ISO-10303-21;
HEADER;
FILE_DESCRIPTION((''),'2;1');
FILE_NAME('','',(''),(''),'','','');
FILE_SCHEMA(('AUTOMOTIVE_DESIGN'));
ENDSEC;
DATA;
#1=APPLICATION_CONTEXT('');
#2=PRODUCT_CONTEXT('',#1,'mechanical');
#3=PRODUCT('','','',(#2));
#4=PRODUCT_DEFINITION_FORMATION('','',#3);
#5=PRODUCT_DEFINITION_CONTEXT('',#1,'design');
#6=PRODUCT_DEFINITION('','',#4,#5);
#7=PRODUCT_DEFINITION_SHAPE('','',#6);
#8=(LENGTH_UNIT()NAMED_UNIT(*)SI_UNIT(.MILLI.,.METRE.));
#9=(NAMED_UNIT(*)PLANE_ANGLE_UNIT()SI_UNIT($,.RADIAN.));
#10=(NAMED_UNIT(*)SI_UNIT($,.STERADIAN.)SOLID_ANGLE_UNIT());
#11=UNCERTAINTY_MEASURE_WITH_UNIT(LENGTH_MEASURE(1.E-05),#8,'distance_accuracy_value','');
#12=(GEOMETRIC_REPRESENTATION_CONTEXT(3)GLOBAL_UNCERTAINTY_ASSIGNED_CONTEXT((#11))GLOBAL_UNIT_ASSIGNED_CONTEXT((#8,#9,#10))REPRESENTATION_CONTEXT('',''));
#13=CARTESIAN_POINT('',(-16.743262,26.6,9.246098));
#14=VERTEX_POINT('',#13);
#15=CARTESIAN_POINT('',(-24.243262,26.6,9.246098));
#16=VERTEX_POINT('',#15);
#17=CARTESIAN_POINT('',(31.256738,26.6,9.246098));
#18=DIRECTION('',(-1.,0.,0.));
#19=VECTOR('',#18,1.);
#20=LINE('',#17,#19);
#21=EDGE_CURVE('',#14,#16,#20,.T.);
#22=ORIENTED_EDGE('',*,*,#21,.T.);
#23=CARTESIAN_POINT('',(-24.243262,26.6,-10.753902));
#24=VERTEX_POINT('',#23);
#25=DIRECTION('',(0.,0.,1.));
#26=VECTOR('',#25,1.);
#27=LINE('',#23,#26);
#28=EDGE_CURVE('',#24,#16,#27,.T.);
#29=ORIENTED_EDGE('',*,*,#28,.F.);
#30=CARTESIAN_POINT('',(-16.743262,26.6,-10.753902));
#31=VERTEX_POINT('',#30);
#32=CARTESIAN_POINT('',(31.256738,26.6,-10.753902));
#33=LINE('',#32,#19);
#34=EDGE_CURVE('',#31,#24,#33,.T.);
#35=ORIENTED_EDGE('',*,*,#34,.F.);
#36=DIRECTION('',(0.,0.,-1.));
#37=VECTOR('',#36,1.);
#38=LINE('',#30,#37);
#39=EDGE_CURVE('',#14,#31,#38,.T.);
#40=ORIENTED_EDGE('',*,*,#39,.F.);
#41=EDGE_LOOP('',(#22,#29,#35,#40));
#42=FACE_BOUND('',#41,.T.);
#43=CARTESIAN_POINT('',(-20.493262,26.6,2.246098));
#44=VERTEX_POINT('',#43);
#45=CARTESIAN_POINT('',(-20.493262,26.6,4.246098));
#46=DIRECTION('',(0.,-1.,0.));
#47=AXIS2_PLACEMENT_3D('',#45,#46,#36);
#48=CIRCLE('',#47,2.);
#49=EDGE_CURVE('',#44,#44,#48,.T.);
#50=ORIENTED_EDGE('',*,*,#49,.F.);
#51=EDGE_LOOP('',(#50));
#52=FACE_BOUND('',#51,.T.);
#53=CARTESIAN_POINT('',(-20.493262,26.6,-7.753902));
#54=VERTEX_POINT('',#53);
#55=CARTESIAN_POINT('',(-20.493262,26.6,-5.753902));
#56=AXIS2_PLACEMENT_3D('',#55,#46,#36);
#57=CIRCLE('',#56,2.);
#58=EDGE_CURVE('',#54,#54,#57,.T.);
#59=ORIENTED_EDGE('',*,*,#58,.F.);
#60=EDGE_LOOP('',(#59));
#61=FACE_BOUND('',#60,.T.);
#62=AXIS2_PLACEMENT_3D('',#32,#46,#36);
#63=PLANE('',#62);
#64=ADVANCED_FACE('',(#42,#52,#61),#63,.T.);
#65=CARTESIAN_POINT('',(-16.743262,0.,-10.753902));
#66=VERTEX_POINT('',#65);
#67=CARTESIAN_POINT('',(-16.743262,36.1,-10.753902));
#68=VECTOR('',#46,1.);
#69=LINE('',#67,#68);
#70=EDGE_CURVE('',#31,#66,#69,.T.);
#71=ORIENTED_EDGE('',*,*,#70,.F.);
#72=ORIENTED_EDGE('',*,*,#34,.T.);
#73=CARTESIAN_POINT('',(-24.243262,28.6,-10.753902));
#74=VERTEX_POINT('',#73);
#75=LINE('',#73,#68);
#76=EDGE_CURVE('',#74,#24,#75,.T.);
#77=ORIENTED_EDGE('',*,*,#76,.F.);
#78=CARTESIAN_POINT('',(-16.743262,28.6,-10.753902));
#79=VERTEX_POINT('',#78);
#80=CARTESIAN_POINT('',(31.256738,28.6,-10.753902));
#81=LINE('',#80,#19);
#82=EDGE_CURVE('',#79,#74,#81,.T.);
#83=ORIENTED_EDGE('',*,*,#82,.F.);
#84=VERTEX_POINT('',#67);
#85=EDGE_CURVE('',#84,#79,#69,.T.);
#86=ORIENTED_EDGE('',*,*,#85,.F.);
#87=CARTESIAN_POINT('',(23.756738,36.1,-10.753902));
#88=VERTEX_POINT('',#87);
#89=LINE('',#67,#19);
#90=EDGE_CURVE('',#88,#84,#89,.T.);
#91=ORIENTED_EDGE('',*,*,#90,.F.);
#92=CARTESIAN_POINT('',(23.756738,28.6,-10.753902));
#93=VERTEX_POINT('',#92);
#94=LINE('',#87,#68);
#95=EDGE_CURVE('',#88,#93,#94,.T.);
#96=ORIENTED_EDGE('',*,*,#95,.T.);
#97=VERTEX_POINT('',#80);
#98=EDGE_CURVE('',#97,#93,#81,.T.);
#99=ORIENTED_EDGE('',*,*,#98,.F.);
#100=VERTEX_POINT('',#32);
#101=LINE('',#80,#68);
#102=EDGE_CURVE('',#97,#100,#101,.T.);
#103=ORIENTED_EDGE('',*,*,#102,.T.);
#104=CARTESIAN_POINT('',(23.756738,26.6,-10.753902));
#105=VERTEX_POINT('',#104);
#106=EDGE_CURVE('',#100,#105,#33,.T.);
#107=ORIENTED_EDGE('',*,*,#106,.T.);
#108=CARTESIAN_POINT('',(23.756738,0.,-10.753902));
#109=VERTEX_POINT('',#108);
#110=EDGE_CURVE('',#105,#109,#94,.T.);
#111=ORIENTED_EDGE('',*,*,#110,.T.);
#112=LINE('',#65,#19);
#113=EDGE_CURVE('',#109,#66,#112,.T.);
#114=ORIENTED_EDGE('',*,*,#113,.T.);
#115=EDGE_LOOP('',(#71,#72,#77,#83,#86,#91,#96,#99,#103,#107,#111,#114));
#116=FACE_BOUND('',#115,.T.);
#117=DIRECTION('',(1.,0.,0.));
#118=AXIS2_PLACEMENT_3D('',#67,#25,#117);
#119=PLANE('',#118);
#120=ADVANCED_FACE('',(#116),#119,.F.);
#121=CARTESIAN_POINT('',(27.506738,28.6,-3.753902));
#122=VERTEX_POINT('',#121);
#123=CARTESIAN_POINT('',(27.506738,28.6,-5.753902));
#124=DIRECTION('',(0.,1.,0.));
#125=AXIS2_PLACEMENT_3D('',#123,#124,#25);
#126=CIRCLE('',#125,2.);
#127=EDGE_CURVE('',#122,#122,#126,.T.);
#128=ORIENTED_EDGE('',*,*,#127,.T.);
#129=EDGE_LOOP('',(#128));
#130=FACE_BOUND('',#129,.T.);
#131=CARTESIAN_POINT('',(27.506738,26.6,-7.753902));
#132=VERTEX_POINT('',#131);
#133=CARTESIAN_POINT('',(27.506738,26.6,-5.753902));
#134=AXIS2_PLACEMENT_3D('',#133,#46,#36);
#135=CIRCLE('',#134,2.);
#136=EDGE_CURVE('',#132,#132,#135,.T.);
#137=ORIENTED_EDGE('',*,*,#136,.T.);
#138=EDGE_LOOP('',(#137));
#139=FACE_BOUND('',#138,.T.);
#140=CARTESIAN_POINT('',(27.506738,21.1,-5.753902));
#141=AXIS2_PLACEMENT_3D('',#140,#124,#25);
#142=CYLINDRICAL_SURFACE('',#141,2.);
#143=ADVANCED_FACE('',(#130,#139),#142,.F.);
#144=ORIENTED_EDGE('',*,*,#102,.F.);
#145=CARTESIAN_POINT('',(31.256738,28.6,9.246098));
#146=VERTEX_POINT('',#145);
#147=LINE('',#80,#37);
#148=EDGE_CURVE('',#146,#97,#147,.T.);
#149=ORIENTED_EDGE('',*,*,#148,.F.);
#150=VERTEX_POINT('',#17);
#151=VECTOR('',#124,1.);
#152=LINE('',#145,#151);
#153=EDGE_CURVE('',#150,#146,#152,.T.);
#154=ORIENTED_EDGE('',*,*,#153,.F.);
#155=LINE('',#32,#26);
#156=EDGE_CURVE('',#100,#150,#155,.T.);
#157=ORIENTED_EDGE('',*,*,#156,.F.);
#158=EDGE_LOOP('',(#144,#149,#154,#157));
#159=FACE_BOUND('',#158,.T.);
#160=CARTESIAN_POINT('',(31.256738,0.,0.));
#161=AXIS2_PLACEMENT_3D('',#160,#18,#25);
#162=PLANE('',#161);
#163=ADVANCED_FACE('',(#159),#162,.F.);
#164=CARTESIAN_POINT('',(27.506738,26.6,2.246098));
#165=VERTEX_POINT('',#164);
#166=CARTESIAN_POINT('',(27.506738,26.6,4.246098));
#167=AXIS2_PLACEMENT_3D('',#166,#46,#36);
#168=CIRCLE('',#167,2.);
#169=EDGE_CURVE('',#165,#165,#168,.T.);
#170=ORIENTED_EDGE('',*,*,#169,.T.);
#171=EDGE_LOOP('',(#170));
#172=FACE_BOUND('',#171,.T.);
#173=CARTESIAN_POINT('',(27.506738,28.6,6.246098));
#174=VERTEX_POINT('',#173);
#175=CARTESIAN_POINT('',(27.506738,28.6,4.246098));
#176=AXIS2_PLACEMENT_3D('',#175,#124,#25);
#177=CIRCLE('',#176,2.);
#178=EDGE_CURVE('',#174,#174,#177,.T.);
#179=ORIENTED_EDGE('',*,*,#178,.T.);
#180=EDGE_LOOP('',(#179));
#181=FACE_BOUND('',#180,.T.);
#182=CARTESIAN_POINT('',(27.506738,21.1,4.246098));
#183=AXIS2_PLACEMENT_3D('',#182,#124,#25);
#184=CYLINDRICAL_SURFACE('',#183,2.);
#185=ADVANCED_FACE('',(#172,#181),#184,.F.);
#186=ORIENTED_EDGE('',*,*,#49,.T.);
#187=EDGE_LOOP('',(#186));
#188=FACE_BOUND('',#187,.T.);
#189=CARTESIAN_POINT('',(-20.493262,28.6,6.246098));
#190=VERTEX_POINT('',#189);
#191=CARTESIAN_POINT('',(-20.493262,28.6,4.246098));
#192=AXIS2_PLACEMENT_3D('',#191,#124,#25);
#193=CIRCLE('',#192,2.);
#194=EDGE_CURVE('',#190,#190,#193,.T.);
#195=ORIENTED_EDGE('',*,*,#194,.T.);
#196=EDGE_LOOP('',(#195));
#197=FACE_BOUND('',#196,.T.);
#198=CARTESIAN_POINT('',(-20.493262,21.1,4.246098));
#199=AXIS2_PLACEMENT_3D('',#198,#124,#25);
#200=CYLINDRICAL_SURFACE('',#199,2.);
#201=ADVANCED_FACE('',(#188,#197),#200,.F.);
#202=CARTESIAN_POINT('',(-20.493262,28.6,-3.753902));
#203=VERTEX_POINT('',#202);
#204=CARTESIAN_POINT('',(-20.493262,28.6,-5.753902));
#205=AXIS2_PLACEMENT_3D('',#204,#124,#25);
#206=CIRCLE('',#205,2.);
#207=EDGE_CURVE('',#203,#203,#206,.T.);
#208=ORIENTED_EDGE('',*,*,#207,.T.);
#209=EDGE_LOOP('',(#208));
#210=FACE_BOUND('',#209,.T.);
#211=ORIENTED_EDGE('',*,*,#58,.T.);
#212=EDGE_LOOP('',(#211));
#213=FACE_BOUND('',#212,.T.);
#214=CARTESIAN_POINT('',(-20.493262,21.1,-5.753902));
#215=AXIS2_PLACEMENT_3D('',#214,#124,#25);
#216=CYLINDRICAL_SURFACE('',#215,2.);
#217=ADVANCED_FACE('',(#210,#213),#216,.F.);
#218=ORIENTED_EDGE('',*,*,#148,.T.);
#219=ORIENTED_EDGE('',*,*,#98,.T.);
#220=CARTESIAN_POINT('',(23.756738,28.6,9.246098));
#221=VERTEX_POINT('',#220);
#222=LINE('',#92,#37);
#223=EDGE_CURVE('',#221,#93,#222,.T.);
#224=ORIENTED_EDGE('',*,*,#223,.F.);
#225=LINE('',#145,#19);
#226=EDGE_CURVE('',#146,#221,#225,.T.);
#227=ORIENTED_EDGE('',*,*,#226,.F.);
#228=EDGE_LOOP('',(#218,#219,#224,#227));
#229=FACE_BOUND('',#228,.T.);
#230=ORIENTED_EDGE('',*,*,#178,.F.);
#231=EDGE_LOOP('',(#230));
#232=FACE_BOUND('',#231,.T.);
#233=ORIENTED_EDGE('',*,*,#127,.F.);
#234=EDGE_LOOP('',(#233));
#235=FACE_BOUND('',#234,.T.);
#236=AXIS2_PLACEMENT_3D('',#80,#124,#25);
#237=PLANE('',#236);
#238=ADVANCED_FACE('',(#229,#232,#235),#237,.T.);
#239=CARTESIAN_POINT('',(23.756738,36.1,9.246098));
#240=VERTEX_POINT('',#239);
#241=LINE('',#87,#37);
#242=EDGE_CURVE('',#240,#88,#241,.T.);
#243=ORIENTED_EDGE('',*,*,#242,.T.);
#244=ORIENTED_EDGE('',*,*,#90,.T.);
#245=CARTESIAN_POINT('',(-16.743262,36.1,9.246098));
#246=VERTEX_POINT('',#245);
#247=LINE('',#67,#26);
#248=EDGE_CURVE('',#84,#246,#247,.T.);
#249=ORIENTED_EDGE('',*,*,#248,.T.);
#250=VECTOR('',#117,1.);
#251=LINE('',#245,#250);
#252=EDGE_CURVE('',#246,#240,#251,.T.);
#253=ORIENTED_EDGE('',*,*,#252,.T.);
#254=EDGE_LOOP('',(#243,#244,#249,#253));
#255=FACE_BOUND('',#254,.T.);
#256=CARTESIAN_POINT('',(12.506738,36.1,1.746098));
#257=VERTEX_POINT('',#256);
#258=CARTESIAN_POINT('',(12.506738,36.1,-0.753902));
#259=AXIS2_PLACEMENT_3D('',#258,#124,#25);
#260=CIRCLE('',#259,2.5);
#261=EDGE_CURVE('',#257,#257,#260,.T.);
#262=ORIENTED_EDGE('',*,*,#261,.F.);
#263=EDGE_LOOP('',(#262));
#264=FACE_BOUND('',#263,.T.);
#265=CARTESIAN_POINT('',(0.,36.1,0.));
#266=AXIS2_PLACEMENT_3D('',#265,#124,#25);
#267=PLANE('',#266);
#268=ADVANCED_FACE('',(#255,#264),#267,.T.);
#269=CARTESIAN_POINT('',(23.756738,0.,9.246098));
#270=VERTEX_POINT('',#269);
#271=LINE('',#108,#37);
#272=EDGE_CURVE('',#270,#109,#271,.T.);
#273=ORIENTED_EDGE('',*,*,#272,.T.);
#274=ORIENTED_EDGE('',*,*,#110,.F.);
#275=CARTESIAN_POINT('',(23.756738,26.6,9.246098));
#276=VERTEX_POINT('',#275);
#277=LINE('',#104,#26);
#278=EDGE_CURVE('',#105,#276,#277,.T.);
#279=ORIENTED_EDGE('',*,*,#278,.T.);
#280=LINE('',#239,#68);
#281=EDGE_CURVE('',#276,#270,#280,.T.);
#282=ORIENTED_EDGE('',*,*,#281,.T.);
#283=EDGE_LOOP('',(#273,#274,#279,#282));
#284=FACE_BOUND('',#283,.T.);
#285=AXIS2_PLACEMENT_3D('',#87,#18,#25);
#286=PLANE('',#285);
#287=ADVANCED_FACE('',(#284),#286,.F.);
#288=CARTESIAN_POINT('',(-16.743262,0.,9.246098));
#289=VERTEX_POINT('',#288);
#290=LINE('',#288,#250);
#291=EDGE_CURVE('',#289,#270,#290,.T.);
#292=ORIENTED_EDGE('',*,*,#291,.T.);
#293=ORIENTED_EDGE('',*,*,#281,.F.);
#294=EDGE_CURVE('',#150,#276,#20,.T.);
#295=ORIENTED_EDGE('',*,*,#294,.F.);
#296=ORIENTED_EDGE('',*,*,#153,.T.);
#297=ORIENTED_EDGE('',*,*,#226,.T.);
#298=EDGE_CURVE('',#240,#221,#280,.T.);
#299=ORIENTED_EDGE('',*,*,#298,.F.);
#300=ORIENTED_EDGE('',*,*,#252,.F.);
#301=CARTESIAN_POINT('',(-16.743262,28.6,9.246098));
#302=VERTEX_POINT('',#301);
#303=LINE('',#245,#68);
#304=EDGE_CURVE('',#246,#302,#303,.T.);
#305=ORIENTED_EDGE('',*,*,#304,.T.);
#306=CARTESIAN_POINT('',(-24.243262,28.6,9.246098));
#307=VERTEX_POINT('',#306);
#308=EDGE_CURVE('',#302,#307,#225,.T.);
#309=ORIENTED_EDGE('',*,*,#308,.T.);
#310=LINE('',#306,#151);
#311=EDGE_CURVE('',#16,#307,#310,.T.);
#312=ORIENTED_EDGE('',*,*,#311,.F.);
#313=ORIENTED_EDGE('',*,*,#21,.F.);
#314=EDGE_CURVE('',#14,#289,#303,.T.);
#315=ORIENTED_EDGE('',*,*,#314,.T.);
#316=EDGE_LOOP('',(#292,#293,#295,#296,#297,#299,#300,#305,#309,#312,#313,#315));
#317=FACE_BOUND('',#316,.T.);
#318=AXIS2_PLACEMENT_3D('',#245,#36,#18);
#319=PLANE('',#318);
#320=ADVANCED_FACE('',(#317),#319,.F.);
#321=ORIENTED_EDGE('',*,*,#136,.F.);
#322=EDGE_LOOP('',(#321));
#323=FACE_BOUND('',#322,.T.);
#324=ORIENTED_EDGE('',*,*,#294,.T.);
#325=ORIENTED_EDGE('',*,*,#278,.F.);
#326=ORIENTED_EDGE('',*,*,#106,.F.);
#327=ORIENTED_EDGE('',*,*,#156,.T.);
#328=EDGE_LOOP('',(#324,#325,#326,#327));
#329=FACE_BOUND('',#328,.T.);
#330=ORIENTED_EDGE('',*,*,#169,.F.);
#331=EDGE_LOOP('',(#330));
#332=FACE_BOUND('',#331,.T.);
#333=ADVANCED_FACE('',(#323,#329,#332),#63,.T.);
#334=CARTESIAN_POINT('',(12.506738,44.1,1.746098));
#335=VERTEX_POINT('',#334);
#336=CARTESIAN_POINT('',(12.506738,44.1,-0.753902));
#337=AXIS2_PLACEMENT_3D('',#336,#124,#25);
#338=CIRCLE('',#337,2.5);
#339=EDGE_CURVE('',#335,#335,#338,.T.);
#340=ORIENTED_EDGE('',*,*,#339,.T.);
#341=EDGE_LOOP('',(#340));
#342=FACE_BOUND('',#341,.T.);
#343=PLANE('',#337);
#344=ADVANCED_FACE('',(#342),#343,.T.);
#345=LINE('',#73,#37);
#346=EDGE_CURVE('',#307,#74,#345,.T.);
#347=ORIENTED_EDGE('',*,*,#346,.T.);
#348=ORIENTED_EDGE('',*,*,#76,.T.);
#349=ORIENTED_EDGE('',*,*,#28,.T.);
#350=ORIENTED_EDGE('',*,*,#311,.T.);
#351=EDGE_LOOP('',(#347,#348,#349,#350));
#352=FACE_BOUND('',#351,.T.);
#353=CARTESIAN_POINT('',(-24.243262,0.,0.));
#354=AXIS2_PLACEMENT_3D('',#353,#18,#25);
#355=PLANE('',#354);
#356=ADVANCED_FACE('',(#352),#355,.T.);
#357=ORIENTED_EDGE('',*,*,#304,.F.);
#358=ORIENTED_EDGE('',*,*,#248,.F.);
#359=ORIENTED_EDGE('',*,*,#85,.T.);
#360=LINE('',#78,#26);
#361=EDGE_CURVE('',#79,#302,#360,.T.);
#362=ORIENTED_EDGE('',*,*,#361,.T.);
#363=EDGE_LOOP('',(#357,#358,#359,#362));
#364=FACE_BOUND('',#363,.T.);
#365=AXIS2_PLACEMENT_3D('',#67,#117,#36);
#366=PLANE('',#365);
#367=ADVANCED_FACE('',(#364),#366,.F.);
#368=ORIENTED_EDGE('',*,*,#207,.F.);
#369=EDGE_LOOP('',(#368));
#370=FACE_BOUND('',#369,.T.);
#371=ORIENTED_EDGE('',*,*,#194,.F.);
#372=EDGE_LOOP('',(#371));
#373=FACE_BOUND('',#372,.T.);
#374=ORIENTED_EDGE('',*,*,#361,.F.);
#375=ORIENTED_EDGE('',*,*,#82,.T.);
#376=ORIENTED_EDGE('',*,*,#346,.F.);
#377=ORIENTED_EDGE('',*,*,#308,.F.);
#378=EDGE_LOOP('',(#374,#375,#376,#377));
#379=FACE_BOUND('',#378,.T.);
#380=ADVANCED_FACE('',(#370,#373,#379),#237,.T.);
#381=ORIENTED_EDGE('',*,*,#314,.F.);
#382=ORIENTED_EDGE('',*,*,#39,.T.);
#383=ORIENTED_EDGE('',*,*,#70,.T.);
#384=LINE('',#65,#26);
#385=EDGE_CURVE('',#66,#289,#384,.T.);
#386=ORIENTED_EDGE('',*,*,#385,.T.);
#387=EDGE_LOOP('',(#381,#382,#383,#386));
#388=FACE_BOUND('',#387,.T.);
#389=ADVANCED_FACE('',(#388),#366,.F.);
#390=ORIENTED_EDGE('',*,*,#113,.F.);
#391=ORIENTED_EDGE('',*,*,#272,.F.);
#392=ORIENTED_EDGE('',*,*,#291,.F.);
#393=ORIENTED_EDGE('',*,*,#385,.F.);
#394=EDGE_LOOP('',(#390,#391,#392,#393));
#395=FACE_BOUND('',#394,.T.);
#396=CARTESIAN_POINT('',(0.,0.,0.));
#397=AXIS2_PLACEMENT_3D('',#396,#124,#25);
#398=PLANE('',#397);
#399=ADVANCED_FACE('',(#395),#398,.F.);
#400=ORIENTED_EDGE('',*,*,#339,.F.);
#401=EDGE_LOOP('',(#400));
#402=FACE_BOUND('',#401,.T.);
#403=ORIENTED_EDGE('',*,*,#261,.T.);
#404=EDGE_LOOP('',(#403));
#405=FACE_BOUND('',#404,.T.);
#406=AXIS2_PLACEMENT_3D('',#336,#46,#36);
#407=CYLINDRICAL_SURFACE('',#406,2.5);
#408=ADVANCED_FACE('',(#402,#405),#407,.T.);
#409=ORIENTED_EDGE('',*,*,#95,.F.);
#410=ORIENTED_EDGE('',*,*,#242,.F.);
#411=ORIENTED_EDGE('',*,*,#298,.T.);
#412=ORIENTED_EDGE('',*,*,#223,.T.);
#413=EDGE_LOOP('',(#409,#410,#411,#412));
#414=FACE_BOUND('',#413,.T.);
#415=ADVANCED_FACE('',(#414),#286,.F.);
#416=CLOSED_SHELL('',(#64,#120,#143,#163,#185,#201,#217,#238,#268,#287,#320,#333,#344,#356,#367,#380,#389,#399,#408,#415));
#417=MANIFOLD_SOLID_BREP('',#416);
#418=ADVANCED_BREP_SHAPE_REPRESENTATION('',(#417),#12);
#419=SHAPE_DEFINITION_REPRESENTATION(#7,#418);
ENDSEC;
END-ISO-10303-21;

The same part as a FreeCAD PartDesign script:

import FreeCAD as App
import Part
import Sketcher
from FreeCAD import Vector
Q = App.Units.Quantity

doc = App.newDocument("Part")
body = doc.addObject("PartDesign::Body", "Body")

# Sketch on XZ plane
sketch1 = body.newObject("Sketcher::SketchObject", "Sketch")
sketch1.AttachmentSupport = (doc.getObject("XZ_Plane"), [""])
sketch1.MapMode = "FlatFace"
sketch1.addGeometry([
    Part.LineSegment(Vector(-17, -11, 0), Vector(-17, 9, 0)),
    Part.LineSegment(Vector(-17, 9, 0), Vector(24, 9, 0)),
    Part.LineSegment(Vector(24, 9, 0), Vector(24, -11, 0)),
    Part.LineSegment(Vector(24, -11, 0), Vector(-17, -11, 0)),
], False)
sketch1.addConstraint([
    Sketcher.Constraint("Coincident", 0, 2, 1, 1),
    Sketcher.Constraint("Coincident", 1, 2, 2, 1),
    Sketcher.Constraint("Coincident", 2, 2, 3, 1),
    Sketcher.Constraint("Coincident", 3, 2, 0, 1),
    Sketcher.Constraint("Vertical", 0),
    Sketcher.Constraint("Horizontal", 1),
    Sketcher.Constraint("Vertical", 2),
    Sketcher.Constraint("Horizontal", 3),
    Sketcher.Constraint("DistanceY", 0, 1, 0, 2, Q("20 mm")),
    Sketcher.Constraint("DistanceX", 1, 1, 1, 2, Q("40.5 mm")),
    Sketcher.Constraint("DistanceY", -1, 1, 0, 2, Q("9.246098 mm")),
    Sketcher.Constraint("DistanceX", 0, 2, -1, 1, Q("16.743262 mm")),
])
pad1 = body.newObject("PartDesign::Pad", "Pad")
pad1.Profile = sketch1
pad1.Length = 36.1
pad1.Reversed = True

# Sketch on XZ plane
sketch2 = body.newObject("Sketcher::SketchObject", "Sketch001")
sketch2.AttachmentSupport = (doc.getObject("XZ_Plane"), [""])
sketch2.MapMode = "FlatFace"
sketch2.AttachmentOffset = App.Placement(Vector(0, 0, -36.1), App.Rotation())
sketch2.addGeometry(Part.Circle(Vector(12.5, -0.8, 0), Vector(0, 0, 1), 2.5), False)
sketch2.addConstraint([
    Sketcher.Constraint("Diameter", 0, Q("5 mm")),
    Sketcher.Constraint("DistanceY", 0, 3, -1, 1, Q("0.753902 mm")),
    Sketcher.Constraint("DistanceX", -1, 1, 0, 3, Q("12.506738 mm")),
])
pad2 = body.newObject("PartDesign::Pad", "Pad001")
pad2.Profile = sketch2
pad2.Length = 8
pad2.Reversed = True

# Sketch on YZ plane
sketch3 = body.newObject("Sketcher::SketchObject", "Sketch002")
sketch3.AttachmentSupport = (doc.getObject("YZ_Plane"), [""])
sketch3.MapMode = "FlatFace"
sketch3.AttachmentOffset = App.Placement(Vector(0, 0, -16.743262), App.Rotation())
sketch3.addGeometry([
    Part.LineSegment(Vector(28.6, -10.8, 0), Vector(26.6, -10.8, 0)),
    Part.LineSegment(Vector(26.6, -10.8, 0), Vector(26.6, 9.2, 0)),
    Part.LineSegment(Vector(26.6, 9.2, 0), Vector(28.6, 9.2, 0)),
    Part.LineSegment(Vector(28.6, 9.2, 0), Vector(28.6, -10.8, 0)),
], False)
sketch3.addConstraint([
    Sketcher.Constraint("Coincident", 0, 2, 1, 1),
    Sketcher.Constraint("Coincident", 1, 2, 2, 1),
    Sketcher.Constraint("Coincident", 2, 2, 3, 1),
    Sketcher.Constraint("Coincident", 3, 2, 0, 1),
    Sketcher.Constraint("Horizontal", 0),
    Sketcher.Constraint("Vertical", 1),
    Sketcher.Constraint("Horizontal", 2),
    Sketcher.Constraint("Vertical", 3),
    Sketcher.Constraint("DistanceX", 0, 2, 0, 1, Q("2 mm")),
    Sketcher.Constraint("DistanceY", 1, 1, 1, 2, Q("20 mm")),
    Sketcher.Constraint("DistanceX", -1, 1, 0, 2, Q("26.6 mm")),
    Sketcher.Constraint("DistanceY", 0, 2, -1, 1, Q("10.753902 mm")),
])
pad3 = body.newObject("PartDesign::Pad", "Pad002")
pad3.Profile = sketch3
pad3.Type = "TwoLengths"
pad3.Length = 7.5
pad3.Length2 = 48
pad3.Reversed = True

# Sketch on XZ plane
sketch4 = body.newObject("Sketcher::SketchObject", "Sketch003")
sketch4.AttachmentSupport = (doc.getObject("XZ_Plane"), [""])
sketch4.MapMode = "FlatFace"
sketch4.AttachmentOffset = App.Placement(Vector(0, 0, -28.6), App.Rotation())
sketch4.addGeometry([
    Part.Circle(Vector(-20.5, -5.8, 0), Vector(0, 0, 1), 2),
    Part.Circle(Vector(27.5, -5.8, 0), Vector(0, 0, 1), 2),
    Part.Circle(Vector(-20.5, 4.2, 0), Vector(0, 0, 1), 2),
    Part.Circle(Vector(27.5, 4.2, 0), Vector(0, 0, 1), 2),
], False)
sketch4.addConstraint([
    Sketcher.Constraint("Equal", 0, 1),
    Sketcher.Constraint("Equal", 1, 2),
    Sketcher.Constraint("Equal", 2, 3),
    Sketcher.Constraint("Horizontal", 0, 3, 1, 3),
    Sketcher.Constraint("Horizontal", 2, 3, 3, 3),
    Sketcher.Constraint("Vertical", 0, 3, 2, 3),
    Sketcher.Constraint("Vertical", 1, 3, 3, 3),
    Sketcher.Constraint("Diameter", 0, Q("4 mm")),
    Sketcher.Constraint("DistanceX", 0, 3, 1, 3, Q("48 mm")),
    Sketcher.Constraint("DistanceY", 0, 3, 2, 3, Q("10 mm")),
    Sketcher.Constraint("DistanceY", 0, 3, -1, 1, Q("5.753902 mm")),
    Sketcher.Constraint("DistanceX", 0, 3, -1, 1, Q("20.493262 mm")),
])
pocket1 = body.newObject("PartDesign::Pocket", "Pocket")
pocket1.Profile = sketch4
pocket1.Length = 7.5
pocket1.Reversed = True

doc.recompute()
